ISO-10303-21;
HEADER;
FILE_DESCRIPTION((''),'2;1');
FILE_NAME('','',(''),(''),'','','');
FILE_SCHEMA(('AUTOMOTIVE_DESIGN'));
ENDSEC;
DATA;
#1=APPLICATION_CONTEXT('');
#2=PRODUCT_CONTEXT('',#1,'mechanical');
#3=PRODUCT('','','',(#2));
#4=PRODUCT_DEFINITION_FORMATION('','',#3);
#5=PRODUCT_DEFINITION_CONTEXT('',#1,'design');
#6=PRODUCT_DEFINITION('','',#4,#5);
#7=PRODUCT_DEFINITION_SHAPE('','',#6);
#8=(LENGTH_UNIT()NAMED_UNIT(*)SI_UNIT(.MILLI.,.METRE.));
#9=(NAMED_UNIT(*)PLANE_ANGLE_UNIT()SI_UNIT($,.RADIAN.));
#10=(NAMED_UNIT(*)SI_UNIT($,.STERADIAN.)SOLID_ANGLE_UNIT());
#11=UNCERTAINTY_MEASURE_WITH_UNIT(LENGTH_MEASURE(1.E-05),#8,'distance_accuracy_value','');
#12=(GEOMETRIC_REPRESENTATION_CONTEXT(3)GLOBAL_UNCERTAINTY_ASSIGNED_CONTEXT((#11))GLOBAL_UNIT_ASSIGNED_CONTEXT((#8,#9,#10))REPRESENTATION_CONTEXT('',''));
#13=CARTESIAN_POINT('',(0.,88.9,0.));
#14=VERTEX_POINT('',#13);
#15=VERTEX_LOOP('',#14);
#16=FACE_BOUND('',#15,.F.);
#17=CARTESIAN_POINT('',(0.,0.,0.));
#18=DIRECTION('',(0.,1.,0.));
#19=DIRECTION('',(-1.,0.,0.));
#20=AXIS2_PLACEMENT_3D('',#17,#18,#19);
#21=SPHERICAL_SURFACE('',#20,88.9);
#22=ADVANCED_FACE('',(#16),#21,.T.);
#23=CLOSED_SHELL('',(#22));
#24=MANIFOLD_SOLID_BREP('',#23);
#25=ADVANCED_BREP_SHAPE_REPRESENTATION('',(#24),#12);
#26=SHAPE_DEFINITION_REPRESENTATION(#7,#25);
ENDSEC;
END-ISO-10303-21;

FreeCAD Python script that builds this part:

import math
import FreeCAD as App
import Part
import Sketcher
Q = App.Units.Quantity

doc = App.newDocument("Part")
body = doc.addObject("PartDesign::Body", "Body")

sketch1 = doc.addObject("Sketcher::SketchObject", "Sketch")
body.addObject(sketch1)
sketch1.AttachmentSupport = (doc.XY_Plane, [""])
sketch1.MapMode = "FlatFace"
sketch1.addGeometry([
    Part.LineSegment(App.Vector(0, -89, 0), App.Vector(0, 89, 0)),
    Part.ArcOfCircle(Part.Circle(App.Vector(0, 0, 0), App.Vector(0, 0, 1), 89), math.radians(90), math.radians(270)),
], False)
sketch1.addConstraint([
    Sketcher.Constraint("Coincident", 0, 1, 1, 2),
    Sketcher.Constraint("Coincident", 1, 1, 0, 2),
    Sketcher.Constraint("Vertical", 0),
    Sketcher.Constraint("Coincident", 1, 3, -1, 1),
    Sketcher.Constraint("PointOnObject", 0, 1, -2),
    Sketcher.Constraint("Radius", 1, Q("3.5 in")),
])
revolution = doc.addObject("PartDesign::Revolution", "Revolution")
body.addObject(revolution)
revolution.Profile = sketch1
revolution.ReferenceAxis = (sketch1, ["V_Axis"])
revolution.Angle = 360

doc.recompute()
